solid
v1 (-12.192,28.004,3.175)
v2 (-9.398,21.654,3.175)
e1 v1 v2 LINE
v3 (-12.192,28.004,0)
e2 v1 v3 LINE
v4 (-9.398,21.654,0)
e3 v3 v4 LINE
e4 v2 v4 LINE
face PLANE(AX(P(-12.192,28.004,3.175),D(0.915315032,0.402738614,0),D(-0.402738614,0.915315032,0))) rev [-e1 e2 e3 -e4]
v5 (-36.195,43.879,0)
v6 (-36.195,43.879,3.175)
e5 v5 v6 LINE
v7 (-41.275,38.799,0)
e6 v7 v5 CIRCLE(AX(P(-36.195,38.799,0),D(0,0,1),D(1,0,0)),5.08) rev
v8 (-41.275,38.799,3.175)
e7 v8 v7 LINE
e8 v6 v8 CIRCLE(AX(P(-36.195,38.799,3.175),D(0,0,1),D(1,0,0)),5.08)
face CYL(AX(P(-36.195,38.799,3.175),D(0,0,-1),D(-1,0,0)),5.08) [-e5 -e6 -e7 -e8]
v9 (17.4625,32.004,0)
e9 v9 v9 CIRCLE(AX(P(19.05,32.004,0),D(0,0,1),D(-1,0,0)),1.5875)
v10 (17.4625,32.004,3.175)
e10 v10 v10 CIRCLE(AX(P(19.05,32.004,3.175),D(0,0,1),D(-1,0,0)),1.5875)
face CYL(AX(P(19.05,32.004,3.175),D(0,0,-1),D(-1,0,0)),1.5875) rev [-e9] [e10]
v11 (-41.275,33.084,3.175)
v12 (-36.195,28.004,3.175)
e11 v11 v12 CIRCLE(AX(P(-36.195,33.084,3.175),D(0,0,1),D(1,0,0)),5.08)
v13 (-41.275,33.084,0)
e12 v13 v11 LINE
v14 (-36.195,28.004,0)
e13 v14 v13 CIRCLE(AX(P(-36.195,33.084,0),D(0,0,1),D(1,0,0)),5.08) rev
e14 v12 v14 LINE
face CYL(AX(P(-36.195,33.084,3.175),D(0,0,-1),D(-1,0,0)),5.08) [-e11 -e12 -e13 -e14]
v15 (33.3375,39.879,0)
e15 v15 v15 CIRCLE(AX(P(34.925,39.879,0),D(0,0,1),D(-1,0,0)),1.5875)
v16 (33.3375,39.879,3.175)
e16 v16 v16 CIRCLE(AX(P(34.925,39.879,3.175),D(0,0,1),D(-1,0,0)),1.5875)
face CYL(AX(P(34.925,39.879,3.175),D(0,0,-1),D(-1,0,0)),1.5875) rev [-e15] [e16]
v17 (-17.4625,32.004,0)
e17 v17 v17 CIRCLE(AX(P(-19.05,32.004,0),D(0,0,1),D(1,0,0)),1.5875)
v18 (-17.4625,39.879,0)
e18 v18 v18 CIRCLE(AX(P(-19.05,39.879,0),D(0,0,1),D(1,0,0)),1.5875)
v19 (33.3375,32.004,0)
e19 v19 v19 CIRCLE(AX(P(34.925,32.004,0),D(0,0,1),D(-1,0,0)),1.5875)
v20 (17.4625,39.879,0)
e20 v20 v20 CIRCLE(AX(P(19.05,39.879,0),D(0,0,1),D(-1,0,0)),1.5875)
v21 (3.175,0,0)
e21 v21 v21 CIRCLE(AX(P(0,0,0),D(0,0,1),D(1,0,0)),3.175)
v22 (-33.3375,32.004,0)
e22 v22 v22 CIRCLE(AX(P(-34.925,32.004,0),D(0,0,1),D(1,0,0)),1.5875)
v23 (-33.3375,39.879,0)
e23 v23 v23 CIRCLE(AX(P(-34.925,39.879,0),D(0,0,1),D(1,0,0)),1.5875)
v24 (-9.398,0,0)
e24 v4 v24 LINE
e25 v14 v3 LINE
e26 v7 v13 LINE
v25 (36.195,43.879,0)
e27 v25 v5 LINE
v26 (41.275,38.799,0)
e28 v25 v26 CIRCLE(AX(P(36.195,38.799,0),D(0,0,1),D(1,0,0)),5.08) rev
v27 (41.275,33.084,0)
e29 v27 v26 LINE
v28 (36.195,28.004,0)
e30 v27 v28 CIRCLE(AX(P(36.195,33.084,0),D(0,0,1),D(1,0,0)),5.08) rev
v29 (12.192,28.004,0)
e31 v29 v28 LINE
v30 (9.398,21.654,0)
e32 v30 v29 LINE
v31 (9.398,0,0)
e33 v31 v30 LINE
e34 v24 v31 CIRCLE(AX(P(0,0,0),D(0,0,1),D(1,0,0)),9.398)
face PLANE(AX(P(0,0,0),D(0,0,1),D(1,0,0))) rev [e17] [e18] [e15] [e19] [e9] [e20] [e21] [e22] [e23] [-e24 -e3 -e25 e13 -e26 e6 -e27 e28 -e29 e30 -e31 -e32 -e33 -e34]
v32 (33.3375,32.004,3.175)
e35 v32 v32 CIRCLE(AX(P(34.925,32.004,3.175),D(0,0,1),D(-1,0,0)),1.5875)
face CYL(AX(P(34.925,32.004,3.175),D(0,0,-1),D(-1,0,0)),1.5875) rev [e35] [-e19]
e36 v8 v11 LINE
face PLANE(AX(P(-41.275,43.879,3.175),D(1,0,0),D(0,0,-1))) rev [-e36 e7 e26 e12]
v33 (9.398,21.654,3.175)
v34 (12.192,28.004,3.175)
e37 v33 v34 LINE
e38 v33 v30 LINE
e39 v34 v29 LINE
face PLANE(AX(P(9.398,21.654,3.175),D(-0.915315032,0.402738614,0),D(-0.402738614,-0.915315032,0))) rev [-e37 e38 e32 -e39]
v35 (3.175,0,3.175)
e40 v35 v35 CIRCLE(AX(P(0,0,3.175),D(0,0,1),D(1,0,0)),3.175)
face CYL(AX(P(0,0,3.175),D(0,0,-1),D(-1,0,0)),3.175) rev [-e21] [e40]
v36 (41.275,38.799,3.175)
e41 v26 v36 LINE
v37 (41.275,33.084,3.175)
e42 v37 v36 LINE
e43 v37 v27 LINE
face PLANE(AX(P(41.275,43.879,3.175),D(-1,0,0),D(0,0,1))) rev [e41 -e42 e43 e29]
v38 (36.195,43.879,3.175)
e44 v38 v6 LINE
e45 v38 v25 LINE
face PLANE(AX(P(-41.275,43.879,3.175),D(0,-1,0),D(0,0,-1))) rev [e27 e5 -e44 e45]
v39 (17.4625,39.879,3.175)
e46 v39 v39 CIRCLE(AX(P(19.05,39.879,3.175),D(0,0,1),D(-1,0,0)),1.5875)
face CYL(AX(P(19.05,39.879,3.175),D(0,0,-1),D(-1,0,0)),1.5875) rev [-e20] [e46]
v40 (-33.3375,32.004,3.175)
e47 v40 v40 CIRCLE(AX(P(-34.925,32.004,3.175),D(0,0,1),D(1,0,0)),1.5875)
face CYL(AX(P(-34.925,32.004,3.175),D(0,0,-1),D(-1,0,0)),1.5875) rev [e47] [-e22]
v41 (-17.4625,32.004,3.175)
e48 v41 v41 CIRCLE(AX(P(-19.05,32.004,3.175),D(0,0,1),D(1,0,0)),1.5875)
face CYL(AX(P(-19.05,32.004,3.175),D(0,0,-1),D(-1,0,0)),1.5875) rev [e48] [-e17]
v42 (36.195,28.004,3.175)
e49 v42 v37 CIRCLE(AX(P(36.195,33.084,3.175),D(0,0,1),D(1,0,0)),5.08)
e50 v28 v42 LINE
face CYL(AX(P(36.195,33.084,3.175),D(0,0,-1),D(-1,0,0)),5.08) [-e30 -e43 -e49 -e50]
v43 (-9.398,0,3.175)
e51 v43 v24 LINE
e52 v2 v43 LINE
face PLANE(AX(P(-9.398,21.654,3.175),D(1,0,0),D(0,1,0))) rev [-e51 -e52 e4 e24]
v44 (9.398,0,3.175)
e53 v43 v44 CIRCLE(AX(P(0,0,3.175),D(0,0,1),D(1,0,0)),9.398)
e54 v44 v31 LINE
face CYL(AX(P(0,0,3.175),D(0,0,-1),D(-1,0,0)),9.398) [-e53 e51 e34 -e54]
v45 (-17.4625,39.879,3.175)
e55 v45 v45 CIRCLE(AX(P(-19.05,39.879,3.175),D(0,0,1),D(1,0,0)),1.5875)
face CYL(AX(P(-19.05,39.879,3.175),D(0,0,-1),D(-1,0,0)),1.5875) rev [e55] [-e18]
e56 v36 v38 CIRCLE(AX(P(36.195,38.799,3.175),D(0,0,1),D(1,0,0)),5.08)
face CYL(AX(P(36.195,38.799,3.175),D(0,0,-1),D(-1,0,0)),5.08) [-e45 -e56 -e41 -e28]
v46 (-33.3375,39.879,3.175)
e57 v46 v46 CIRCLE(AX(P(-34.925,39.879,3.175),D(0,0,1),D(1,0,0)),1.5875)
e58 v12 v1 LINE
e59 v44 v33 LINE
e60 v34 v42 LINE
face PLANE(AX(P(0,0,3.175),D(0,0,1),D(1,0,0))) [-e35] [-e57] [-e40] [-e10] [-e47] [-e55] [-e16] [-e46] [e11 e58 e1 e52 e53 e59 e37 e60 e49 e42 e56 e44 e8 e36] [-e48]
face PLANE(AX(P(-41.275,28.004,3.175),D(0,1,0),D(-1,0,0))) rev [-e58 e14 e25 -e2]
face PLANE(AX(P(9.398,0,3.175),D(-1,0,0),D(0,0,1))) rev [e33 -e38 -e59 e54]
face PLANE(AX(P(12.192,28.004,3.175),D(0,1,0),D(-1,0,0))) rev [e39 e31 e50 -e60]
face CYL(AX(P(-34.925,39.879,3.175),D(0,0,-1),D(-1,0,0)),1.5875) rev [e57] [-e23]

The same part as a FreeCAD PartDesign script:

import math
import FreeCAD as App
import Part
import Sketcher
from FreeCAD import Vector
Q = App.Units.Quantity


def edges_at(feature, points):
    """Names of the edges that pass closest to the given points."""
    edges = feature.Shape.Edges
    near = lambda p: min(range(len(edges)), key=lambda i: edges[i].distToShape(Part.Vertex(*p))[0])
    return sorted({f"Edge{near(p) + 1}" for p in points})

doc = App.newDocument("Part")
body = doc.addObject("PartDesign::Body", "Body")

# Sketch on XY plane
sketch1 = body.newObject("Sketcher::SketchObject", "Sketch")
sketch1.AttachmentSupport = (doc.getObject("XY_Plane"), [""])
sketch1.MapMode = "FlatFace"
sketch1.addGeometry(Part.LineSegment(Vector(41.275, 43.879, 0), Vector(-41.275, 43.879, 0)), False)
sketch1.addGeometry(Part.LineSegment(Vector(-41.275, 43.879, 0), Vector(-41.275, 28.004, 0)), False)
sketch1.addGeometry(Part.LineSegment(Vector(-41.275, 28.004, 0), Vector(-12.192, 28.004, 0)), False)
sketch1.addGeometry(Part.LineSegment(Vector(-12.192, 28.004, 0), Vector(-9.398, 21.654, 0)), False)
sketch1.addGeometry(Part.LineSegment(Vector(-9.398, 21.654, 0), Vector(-9.398, 0, 0)), False)
sketch1.addGeometry(Part.ArcOfCircle(Part.Circle(Vector(0, 0, 0), Vector(0, 0, 1), 9.398), math.radians(180), math.radians(360)), False)
sketch1.addGeometry(Part.LineSegment(Vector(9.398, 0, 0), Vector(9.398, 21.654, 0)), False)
sketch1.addGeometry(Part.LineSegment(Vector(9.398, 21.654, 0), Vector(12.192, 28.004, 0)), False)
sketch1.addGeometry(Part.LineSegment(Vector(12.192, 28.004, 0), Vector(41.275, 28.004, 0)), False)
sketch1.addGeometry(Part.LineSegment(Vector(41.275, 28.004, 0), Vector(41.275, 43.879, 0)), False)
sketch1.addGeometry(Part.Circle(Vector(0, 0, 0), Vector(0, 0, 1), 3.175), False)
sketch1.addGeometry(Part.Circle(Vector(34.925, 32.004, 0), Vector(0, 0, 1), 1.5875), False)
sketch1.addGeometry(Part.Circle(Vector(19.05, 32.004, 0), Vector(0, 0, 1), 1.5875), False)
sketch1.addGeometry(Part.Circle(Vector(34.925, 39.879, 0), Vector(0, 0, 1), 1.5875), False)
sketch1.addGeometry(Part.Circle(Vector(19.05, 39.879, 0), Vector(0, 0, 1), 1.5875), False)
sketch1.addGeometry(Part.Circle(Vector(-19.05, 32.004, 0), Vector(0, 0, 1), 1.5875), False)
sketch1.addGeometry(Part.Circle(Vector(-34.925, 32.004, 0), Vector(0, 0, 1), 1.5875), False)
sketch1.addGeometry(Part.Circle(Vector(-19.05, 39.879, 0), Vector(0, 0, 1), 1.5875), False)
sketch1.addGeometry(Part.Circle(Vector(-34.925, 39.879, 0), Vector(0, 0, 1), 1.5875), False)
sketch1.addConstraint(Sketcher.Constraint("Coincident", 0, 2, 1, 1))
sketch1.addConstraint(Sketcher.Constraint("Coincident", 1, 2, 2, 1))
sketch1.addConstraint(Sketcher.Constraint("Coincident", 2, 2, 3, 1))
sketch1.addConstraint(Sketcher.Constraint("Coincident", 3, 2, 4, 1))
sketch1.addConstraint(Sketcher.Constraint("Tangent", 4, 2, 5, 1))
sketch1.addConstraint(Sketcher.Constraint("Tangent", 5, 2, 6, 1))
sketch1.addConstraint(Sketcher.Constraint("Coincident", 6, 2, 7, 1))
sketch1.addConstraint(Sketcher.Constraint("Coincident", 7, 2, 8, 1))
sketch1.addConstraint(Sketcher.Constraint("Coincident", 8, 2, 9, 1))
sketch1.addConstraint(Sketcher.Constraint("Coincident", 9, 2, 0, 1))
sketch1.addConstraint(Sketcher.Constraint("Horizontal", 0))
sketch1.addConstraint(Sketcher.Constraint("Vertical", 1))
sketch1.addConstraint(Sketcher.Constraint("Horizontal", 2))
sketch1.addConstraint(Sketcher.Constraint("Vertical", 4))
sketch1.addConstraint(Sketcher.Constraint("Vertical", 6))
sketch1.addConstraint(Sketcher.Constraint("Horizontal", 8))
sketch1.addConstraint(Sketcher.Constraint("Vertical", 9))
sketch1.addConstraint(Sketcher.Constraint("Coincident", 5, 3, -1, 1))
sketch1.addConstraint(Sketcher.Constraint("Coincident", 10, 3, -1, 1))
sketch1.addConstraint(Sketcher.Constraint("Equal", 11, 12))
sketch1.addConstraint(Sketcher.Constraint("Equal", 12, 13))
sketch1.addConstraint(Sketcher.Constraint("Equal", 13, 14))
sketch1.addConstraint(Sketcher.Constraint("Equal", 14, 15))
sketch1.addConstraint(Sketcher.Constraint("Equal", 15, 16))
sketch1.addConstraint(Sketcher.Constraint("Equal", 16, 17))
sketch1.addConstraint(Sketcher.Constraint("Equal", 17, 18))
sketch1.addConstraint(Sketcher.Constraint("Symmetric", 12, 3, 15, 3, -2))
sketch1.addConstraint(Sketcher.Constraint("Symmetric", 11, 3, 16, 3, -2))
sketch1.addConstraint(Sketcher.Constraint("Symmetric", 14, 3, 17, 3, -2))
sketch1.addConstraint(Sketcher.Constraint("Symmetric", 13, 3, 18, 3, -2))
sketch1.addConstraint(Sketcher.Constraint("Symmetric", 2, 2, 7, 2, -2))
sketch1.addConstraint(Sketcher.Constraint("Horizontal", 11, 3, 12, 3))
sketch1.addConstraint(Sketcher.Constraint("Horizontal", 13, 3, 14, 3))
sketch1.addConstraint(Sketcher.Constraint("Horizontal", 3, 2, 6, 2))
sketch1.addConstraint(Sketcher.Constraint("Vertical", 11, 3, 13, 3))
sketch1.addConstraint(Sketcher.Constraint("Vertical", 12, 3, 14, 3))
sketch1.addConstraint(Sketcher.Constraint("Equal", 2, 8))
sketch1.addConstraint(Sketcher.Constraint("Diameter", 10, Q("0.25 in")))
sketch1.addConstraint(Sketcher.Constraint("Radius", 5, Q("0.37 in")))
sketch1.addConstraint(Sketcher.Constraint("Diameter", 11, Q("0.125 in")))
sketch1.addConstraint(Sketcher.Constraint("DistanceX", 0, 2, 0, 1, Q("3.25 in")))
sketch1.addConstraint(Sketcher.Constraint("DistanceX", 15, 3, 12, 3, Q("1.5 in")))
sketch1.addConstraint(Sketcher.Constraint("DistanceX", 2, 1, 2, 2, Q("1.145 in")))
sketch1.addConstraint(Sketcher.Constraint("DistanceY", 1, 2, 1, 1, Q("0.625 in")))
sketch1.addConstraint(Sketcher.Constraint("DistanceY", -1, 1, 11, 3, Q("1.26 in")))
sketch1.addConstraint(Sketcher.Constraint("DistanceX", 0, 2, 18, 3, Q("0.25 in")))
sketch1.addConstraint(Sketcher.Constraint("DistanceY", 3, 2, 2, 2, Q("0.25 in")))
sketch1.addConstraint(Sketcher.Constraint("DistanceY", 4, 2, 4, 1, 21.654))
sketch1.addConstraint(Sketcher.Constraint("DistanceY", -1, 1, 13, 3, 39.879))
pad1 = body.newObject("PartDesign::Pad", "Pad")
pad1.Profile = sketch1
pad1.Length = Q("0.125 in")
doc.recompute()

fillet = body.newObject("PartDesign::Fillet", "Fillet")
fillet.Base = (pad1, edges_at(pad1, [
    (-41.275, 43.879, 1.587),
    (41.275, 43.879, 1.587),
    (41.275, 28.004, 1.587),
    (-41.275, 28.004, 1.587),
]))
fillet.Radius = Q("0.2 in")

doc.recompute()
